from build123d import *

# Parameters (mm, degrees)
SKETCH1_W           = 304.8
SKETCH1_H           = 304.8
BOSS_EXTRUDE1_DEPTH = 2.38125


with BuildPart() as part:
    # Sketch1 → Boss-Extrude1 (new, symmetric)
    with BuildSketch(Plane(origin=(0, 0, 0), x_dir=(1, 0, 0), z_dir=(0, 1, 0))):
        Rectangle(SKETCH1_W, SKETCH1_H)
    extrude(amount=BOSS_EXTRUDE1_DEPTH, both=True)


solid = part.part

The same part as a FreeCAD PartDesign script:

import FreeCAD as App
import Part
import Sketcher
Q = App.Units.Quantity

doc = App.newDocument("Part")
body = doc.addObject("PartDesign::Body", "Body")

sketch1 = body.newObject("Sketcher::SketchObject", "Sketch")
sketch1.AttachmentSupport = (doc.getObject("XZ_Plane"), [""])
sketch1.MapMode = "FlatFace"
sketch1.addGeometry([
    Part.LineSegment(App.Vector(-152, -152, 0), App.Vector(-152, 152, 0)),
    Part.LineSegment(App.Vector(-152, 152, 0), App.Vector(152, 152, 0)),
    Part.LineSegment(App.Vector(152, 152, 0), App.Vector(152, -152, 0)),
    Part.LineSegment(App.Vector(152, -152, 0), App.Vector(-152, -152, 0)),
], False)
sketch1.addConstraint([
    Sketcher.Constraint("Coincident", 0, 2, 1, 1),
    Sketcher.Constraint("Coincident", 1, 2, 2, 1),
    Sketcher.Constraint("Coincident", 2, 2, 3, 1),
    Sketcher.Constraint("Coincident", 3, 2, 0, 1),
    Sketcher.Constraint("Vertical", 0),
    Sketcher.Constraint("Horizontal", 1),
    Sketcher.Constraint("Vertical", 2),
    Sketcher.Constraint("Horizontal", 3),
    Sketcher.Constraint("Symmetric", 0, 2, 2, 2, -1, 1),
    Sketcher.Constraint("Equal", 3, 0),
    Sketcher.Constraint("DistanceX", 1, 1, 1, 2, Q("12 in")),
])
pad1 = body.newObject("PartDesign::Pad", "Pad")
pad1.Profile = sketch1
pad1.Length = Q("0.1875 in")
pad1.Midplane = True

doc.recompute()
